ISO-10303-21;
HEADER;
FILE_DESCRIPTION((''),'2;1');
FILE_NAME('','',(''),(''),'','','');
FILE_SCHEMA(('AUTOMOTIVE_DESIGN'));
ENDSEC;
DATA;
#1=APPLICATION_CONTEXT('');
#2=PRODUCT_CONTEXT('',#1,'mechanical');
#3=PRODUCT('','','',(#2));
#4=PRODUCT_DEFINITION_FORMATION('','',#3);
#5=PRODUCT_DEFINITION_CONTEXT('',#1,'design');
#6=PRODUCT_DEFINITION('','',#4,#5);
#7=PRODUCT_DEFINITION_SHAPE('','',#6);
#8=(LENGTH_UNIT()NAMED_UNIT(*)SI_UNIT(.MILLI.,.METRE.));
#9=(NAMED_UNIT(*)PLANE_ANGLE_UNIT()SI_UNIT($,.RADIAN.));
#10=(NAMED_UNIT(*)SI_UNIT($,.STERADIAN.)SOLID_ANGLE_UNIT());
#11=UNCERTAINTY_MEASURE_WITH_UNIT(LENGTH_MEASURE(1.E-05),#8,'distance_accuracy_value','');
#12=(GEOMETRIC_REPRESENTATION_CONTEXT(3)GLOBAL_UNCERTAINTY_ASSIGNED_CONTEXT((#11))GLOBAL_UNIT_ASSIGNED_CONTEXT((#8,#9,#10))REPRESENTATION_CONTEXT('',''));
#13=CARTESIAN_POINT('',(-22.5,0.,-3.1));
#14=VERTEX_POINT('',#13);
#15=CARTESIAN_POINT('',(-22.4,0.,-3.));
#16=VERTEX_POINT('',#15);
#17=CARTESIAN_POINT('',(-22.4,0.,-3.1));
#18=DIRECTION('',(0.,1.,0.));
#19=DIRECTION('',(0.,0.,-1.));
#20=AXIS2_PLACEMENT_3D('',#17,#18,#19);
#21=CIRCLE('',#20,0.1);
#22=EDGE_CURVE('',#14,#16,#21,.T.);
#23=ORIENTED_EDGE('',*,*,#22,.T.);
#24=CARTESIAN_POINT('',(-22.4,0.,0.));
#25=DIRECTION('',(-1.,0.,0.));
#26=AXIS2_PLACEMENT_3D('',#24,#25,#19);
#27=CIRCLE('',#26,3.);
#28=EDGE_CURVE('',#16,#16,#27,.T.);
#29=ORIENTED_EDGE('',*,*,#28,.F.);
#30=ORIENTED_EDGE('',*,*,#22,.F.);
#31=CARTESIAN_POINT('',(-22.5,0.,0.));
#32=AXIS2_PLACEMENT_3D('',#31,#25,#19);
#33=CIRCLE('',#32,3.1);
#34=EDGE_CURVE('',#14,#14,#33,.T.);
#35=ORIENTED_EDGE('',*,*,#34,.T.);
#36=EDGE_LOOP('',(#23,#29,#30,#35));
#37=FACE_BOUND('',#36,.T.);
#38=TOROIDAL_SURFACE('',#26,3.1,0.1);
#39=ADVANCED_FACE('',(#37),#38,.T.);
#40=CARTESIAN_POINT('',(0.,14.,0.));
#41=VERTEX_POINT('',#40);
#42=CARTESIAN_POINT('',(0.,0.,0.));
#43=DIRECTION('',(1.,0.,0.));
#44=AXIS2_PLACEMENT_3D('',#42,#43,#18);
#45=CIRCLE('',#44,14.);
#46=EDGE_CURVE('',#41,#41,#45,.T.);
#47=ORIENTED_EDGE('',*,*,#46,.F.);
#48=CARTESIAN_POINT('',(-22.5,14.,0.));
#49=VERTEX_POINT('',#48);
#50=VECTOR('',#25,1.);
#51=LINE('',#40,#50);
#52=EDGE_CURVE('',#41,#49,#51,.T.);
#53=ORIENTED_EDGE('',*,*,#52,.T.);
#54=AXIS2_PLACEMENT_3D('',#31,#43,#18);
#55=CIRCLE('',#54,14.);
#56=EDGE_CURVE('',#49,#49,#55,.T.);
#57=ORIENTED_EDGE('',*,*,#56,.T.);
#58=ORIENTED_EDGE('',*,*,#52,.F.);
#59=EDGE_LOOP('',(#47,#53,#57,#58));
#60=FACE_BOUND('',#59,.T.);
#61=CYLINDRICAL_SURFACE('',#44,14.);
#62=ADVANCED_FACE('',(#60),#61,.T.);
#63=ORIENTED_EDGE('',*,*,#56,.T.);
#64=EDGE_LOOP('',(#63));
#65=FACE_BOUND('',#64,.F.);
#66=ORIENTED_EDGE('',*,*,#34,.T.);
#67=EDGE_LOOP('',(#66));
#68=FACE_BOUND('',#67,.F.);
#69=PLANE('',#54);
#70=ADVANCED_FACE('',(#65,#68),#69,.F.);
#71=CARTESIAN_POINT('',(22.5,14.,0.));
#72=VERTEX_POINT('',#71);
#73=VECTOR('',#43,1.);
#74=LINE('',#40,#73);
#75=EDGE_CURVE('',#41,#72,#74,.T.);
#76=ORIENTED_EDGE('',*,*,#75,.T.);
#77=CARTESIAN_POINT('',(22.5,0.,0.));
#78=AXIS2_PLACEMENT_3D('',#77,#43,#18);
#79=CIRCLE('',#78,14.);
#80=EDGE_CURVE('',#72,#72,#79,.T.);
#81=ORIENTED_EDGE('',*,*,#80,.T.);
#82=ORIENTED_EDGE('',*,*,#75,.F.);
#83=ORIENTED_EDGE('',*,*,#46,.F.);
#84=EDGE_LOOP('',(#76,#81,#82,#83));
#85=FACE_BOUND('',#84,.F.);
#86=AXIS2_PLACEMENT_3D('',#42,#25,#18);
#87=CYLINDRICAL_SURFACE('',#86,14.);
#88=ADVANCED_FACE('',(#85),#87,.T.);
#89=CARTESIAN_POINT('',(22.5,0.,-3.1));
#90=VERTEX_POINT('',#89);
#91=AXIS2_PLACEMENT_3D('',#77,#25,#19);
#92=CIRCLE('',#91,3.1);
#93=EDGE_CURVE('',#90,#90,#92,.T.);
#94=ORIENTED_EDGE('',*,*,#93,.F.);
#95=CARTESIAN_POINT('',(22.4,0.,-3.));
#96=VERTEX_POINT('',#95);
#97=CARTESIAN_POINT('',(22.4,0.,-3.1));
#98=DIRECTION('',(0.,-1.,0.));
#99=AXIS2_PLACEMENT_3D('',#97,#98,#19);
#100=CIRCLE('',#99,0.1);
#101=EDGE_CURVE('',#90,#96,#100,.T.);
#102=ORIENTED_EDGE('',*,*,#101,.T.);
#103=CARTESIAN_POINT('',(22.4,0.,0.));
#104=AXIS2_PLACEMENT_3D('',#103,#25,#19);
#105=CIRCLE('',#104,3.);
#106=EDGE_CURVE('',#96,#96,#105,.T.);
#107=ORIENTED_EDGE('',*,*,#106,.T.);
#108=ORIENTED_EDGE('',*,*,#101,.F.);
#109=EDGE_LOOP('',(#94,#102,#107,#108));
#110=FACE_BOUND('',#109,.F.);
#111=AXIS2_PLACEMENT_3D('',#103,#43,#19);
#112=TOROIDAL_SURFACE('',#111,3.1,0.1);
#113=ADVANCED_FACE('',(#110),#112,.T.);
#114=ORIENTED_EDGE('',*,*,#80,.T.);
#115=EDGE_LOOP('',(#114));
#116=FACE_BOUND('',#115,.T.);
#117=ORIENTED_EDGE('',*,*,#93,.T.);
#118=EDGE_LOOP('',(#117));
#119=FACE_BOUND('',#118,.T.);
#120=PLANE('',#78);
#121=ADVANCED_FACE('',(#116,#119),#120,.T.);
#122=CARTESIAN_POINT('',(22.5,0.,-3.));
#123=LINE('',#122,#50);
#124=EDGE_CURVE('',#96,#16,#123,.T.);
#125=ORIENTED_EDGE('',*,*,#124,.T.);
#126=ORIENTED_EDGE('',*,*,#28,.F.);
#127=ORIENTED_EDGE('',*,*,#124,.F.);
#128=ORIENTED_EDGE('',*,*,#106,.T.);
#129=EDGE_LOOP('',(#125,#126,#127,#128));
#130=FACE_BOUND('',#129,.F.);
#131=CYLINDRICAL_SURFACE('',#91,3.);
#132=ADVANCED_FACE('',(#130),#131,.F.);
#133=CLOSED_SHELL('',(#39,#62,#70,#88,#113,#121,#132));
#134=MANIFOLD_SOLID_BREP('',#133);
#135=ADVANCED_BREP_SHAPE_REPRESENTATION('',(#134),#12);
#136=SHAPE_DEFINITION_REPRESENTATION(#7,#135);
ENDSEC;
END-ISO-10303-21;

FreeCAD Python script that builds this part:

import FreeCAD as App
import Part
import Sketcher


def edges_at(feature, points):
    """Names of the edges that pass closest to the given points."""
    edges = feature.Shape.Edges
    near = lambda p: min(range(len(edges)), key=lambda i: edges[i].distToShape(Part.Vertex(*p))[0])
    return sorted({f"Edge{near(p) + 1}" for p in points})

doc = App.newDocument("Part")
body = doc.addObject("PartDesign::Body", "Body")

sketch1 = doc.addObject("Sketcher::SketchObject", "Sketch")
body.addObject(sketch1)
sketch1.AttachmentSupport = (doc.YZ_Plane, [""])
sketch1.MapMode = "FlatFace"
sketch1.addGeometry(Part.Circle(App.Vector(0, 0, 0), App.Vector(0, 0, 1), 14), False)
sketch1.addConstraint(Sketcher.Constraint("Coincident", 0, 3, -1, 1))
sketch1.addConstraint(Sketcher.Constraint("Diameter", 0, 28.0))
pad1 = doc.addObject("PartDesign::Pad", "Pad")
body.addObject(pad1)
pad1.Profile = sketch1
pad1.Length = 45
pad1.Midplane = True

sketch2 = doc.addObject("Sketcher::SketchObject", "Sketch001")
body.addObject(sketch2)
sketch2.AttachmentSupport = (doc.YZ_Plane, [""])
sketch2.MapMode = "FlatFace"
sketch2.AttachmentOffset = App.Placement(App.Vector(0, 0, 22.5), App.Rotation())
sketch2.addGeometry(Part.Circle(App.Vector(0, 0, 0), App.Vector(0, 0, 1), 3), False)
sketch2.addConstraint(Sketcher.Constraint("Coincident", 0, 3, -1, 1))
sketch2.addConstraint(Sketcher.Constraint("Diameter", 0, 6.0))
doc.recompute()
hole = doc.addObject("PartDesign::Hole", "Hole")
body.addObject(hole)
hole.Profile = sketch2
hole.ThreadType = "None"
hole.Diameter = 6
hole.DepthType = "Dimension"
hole.Depth = 60
hole.DrillPoint = "Flat"
doc.recompute()

fillet = doc.addObject("PartDesign::Fillet", "Fillet")
body.addObject(fillet)
fillet.Base = (hole, edges_at(hole, [(-22.5, 0, 3), (22.5, 0, 3)]))
fillet.Radius = 0.1

doc.recompute()
